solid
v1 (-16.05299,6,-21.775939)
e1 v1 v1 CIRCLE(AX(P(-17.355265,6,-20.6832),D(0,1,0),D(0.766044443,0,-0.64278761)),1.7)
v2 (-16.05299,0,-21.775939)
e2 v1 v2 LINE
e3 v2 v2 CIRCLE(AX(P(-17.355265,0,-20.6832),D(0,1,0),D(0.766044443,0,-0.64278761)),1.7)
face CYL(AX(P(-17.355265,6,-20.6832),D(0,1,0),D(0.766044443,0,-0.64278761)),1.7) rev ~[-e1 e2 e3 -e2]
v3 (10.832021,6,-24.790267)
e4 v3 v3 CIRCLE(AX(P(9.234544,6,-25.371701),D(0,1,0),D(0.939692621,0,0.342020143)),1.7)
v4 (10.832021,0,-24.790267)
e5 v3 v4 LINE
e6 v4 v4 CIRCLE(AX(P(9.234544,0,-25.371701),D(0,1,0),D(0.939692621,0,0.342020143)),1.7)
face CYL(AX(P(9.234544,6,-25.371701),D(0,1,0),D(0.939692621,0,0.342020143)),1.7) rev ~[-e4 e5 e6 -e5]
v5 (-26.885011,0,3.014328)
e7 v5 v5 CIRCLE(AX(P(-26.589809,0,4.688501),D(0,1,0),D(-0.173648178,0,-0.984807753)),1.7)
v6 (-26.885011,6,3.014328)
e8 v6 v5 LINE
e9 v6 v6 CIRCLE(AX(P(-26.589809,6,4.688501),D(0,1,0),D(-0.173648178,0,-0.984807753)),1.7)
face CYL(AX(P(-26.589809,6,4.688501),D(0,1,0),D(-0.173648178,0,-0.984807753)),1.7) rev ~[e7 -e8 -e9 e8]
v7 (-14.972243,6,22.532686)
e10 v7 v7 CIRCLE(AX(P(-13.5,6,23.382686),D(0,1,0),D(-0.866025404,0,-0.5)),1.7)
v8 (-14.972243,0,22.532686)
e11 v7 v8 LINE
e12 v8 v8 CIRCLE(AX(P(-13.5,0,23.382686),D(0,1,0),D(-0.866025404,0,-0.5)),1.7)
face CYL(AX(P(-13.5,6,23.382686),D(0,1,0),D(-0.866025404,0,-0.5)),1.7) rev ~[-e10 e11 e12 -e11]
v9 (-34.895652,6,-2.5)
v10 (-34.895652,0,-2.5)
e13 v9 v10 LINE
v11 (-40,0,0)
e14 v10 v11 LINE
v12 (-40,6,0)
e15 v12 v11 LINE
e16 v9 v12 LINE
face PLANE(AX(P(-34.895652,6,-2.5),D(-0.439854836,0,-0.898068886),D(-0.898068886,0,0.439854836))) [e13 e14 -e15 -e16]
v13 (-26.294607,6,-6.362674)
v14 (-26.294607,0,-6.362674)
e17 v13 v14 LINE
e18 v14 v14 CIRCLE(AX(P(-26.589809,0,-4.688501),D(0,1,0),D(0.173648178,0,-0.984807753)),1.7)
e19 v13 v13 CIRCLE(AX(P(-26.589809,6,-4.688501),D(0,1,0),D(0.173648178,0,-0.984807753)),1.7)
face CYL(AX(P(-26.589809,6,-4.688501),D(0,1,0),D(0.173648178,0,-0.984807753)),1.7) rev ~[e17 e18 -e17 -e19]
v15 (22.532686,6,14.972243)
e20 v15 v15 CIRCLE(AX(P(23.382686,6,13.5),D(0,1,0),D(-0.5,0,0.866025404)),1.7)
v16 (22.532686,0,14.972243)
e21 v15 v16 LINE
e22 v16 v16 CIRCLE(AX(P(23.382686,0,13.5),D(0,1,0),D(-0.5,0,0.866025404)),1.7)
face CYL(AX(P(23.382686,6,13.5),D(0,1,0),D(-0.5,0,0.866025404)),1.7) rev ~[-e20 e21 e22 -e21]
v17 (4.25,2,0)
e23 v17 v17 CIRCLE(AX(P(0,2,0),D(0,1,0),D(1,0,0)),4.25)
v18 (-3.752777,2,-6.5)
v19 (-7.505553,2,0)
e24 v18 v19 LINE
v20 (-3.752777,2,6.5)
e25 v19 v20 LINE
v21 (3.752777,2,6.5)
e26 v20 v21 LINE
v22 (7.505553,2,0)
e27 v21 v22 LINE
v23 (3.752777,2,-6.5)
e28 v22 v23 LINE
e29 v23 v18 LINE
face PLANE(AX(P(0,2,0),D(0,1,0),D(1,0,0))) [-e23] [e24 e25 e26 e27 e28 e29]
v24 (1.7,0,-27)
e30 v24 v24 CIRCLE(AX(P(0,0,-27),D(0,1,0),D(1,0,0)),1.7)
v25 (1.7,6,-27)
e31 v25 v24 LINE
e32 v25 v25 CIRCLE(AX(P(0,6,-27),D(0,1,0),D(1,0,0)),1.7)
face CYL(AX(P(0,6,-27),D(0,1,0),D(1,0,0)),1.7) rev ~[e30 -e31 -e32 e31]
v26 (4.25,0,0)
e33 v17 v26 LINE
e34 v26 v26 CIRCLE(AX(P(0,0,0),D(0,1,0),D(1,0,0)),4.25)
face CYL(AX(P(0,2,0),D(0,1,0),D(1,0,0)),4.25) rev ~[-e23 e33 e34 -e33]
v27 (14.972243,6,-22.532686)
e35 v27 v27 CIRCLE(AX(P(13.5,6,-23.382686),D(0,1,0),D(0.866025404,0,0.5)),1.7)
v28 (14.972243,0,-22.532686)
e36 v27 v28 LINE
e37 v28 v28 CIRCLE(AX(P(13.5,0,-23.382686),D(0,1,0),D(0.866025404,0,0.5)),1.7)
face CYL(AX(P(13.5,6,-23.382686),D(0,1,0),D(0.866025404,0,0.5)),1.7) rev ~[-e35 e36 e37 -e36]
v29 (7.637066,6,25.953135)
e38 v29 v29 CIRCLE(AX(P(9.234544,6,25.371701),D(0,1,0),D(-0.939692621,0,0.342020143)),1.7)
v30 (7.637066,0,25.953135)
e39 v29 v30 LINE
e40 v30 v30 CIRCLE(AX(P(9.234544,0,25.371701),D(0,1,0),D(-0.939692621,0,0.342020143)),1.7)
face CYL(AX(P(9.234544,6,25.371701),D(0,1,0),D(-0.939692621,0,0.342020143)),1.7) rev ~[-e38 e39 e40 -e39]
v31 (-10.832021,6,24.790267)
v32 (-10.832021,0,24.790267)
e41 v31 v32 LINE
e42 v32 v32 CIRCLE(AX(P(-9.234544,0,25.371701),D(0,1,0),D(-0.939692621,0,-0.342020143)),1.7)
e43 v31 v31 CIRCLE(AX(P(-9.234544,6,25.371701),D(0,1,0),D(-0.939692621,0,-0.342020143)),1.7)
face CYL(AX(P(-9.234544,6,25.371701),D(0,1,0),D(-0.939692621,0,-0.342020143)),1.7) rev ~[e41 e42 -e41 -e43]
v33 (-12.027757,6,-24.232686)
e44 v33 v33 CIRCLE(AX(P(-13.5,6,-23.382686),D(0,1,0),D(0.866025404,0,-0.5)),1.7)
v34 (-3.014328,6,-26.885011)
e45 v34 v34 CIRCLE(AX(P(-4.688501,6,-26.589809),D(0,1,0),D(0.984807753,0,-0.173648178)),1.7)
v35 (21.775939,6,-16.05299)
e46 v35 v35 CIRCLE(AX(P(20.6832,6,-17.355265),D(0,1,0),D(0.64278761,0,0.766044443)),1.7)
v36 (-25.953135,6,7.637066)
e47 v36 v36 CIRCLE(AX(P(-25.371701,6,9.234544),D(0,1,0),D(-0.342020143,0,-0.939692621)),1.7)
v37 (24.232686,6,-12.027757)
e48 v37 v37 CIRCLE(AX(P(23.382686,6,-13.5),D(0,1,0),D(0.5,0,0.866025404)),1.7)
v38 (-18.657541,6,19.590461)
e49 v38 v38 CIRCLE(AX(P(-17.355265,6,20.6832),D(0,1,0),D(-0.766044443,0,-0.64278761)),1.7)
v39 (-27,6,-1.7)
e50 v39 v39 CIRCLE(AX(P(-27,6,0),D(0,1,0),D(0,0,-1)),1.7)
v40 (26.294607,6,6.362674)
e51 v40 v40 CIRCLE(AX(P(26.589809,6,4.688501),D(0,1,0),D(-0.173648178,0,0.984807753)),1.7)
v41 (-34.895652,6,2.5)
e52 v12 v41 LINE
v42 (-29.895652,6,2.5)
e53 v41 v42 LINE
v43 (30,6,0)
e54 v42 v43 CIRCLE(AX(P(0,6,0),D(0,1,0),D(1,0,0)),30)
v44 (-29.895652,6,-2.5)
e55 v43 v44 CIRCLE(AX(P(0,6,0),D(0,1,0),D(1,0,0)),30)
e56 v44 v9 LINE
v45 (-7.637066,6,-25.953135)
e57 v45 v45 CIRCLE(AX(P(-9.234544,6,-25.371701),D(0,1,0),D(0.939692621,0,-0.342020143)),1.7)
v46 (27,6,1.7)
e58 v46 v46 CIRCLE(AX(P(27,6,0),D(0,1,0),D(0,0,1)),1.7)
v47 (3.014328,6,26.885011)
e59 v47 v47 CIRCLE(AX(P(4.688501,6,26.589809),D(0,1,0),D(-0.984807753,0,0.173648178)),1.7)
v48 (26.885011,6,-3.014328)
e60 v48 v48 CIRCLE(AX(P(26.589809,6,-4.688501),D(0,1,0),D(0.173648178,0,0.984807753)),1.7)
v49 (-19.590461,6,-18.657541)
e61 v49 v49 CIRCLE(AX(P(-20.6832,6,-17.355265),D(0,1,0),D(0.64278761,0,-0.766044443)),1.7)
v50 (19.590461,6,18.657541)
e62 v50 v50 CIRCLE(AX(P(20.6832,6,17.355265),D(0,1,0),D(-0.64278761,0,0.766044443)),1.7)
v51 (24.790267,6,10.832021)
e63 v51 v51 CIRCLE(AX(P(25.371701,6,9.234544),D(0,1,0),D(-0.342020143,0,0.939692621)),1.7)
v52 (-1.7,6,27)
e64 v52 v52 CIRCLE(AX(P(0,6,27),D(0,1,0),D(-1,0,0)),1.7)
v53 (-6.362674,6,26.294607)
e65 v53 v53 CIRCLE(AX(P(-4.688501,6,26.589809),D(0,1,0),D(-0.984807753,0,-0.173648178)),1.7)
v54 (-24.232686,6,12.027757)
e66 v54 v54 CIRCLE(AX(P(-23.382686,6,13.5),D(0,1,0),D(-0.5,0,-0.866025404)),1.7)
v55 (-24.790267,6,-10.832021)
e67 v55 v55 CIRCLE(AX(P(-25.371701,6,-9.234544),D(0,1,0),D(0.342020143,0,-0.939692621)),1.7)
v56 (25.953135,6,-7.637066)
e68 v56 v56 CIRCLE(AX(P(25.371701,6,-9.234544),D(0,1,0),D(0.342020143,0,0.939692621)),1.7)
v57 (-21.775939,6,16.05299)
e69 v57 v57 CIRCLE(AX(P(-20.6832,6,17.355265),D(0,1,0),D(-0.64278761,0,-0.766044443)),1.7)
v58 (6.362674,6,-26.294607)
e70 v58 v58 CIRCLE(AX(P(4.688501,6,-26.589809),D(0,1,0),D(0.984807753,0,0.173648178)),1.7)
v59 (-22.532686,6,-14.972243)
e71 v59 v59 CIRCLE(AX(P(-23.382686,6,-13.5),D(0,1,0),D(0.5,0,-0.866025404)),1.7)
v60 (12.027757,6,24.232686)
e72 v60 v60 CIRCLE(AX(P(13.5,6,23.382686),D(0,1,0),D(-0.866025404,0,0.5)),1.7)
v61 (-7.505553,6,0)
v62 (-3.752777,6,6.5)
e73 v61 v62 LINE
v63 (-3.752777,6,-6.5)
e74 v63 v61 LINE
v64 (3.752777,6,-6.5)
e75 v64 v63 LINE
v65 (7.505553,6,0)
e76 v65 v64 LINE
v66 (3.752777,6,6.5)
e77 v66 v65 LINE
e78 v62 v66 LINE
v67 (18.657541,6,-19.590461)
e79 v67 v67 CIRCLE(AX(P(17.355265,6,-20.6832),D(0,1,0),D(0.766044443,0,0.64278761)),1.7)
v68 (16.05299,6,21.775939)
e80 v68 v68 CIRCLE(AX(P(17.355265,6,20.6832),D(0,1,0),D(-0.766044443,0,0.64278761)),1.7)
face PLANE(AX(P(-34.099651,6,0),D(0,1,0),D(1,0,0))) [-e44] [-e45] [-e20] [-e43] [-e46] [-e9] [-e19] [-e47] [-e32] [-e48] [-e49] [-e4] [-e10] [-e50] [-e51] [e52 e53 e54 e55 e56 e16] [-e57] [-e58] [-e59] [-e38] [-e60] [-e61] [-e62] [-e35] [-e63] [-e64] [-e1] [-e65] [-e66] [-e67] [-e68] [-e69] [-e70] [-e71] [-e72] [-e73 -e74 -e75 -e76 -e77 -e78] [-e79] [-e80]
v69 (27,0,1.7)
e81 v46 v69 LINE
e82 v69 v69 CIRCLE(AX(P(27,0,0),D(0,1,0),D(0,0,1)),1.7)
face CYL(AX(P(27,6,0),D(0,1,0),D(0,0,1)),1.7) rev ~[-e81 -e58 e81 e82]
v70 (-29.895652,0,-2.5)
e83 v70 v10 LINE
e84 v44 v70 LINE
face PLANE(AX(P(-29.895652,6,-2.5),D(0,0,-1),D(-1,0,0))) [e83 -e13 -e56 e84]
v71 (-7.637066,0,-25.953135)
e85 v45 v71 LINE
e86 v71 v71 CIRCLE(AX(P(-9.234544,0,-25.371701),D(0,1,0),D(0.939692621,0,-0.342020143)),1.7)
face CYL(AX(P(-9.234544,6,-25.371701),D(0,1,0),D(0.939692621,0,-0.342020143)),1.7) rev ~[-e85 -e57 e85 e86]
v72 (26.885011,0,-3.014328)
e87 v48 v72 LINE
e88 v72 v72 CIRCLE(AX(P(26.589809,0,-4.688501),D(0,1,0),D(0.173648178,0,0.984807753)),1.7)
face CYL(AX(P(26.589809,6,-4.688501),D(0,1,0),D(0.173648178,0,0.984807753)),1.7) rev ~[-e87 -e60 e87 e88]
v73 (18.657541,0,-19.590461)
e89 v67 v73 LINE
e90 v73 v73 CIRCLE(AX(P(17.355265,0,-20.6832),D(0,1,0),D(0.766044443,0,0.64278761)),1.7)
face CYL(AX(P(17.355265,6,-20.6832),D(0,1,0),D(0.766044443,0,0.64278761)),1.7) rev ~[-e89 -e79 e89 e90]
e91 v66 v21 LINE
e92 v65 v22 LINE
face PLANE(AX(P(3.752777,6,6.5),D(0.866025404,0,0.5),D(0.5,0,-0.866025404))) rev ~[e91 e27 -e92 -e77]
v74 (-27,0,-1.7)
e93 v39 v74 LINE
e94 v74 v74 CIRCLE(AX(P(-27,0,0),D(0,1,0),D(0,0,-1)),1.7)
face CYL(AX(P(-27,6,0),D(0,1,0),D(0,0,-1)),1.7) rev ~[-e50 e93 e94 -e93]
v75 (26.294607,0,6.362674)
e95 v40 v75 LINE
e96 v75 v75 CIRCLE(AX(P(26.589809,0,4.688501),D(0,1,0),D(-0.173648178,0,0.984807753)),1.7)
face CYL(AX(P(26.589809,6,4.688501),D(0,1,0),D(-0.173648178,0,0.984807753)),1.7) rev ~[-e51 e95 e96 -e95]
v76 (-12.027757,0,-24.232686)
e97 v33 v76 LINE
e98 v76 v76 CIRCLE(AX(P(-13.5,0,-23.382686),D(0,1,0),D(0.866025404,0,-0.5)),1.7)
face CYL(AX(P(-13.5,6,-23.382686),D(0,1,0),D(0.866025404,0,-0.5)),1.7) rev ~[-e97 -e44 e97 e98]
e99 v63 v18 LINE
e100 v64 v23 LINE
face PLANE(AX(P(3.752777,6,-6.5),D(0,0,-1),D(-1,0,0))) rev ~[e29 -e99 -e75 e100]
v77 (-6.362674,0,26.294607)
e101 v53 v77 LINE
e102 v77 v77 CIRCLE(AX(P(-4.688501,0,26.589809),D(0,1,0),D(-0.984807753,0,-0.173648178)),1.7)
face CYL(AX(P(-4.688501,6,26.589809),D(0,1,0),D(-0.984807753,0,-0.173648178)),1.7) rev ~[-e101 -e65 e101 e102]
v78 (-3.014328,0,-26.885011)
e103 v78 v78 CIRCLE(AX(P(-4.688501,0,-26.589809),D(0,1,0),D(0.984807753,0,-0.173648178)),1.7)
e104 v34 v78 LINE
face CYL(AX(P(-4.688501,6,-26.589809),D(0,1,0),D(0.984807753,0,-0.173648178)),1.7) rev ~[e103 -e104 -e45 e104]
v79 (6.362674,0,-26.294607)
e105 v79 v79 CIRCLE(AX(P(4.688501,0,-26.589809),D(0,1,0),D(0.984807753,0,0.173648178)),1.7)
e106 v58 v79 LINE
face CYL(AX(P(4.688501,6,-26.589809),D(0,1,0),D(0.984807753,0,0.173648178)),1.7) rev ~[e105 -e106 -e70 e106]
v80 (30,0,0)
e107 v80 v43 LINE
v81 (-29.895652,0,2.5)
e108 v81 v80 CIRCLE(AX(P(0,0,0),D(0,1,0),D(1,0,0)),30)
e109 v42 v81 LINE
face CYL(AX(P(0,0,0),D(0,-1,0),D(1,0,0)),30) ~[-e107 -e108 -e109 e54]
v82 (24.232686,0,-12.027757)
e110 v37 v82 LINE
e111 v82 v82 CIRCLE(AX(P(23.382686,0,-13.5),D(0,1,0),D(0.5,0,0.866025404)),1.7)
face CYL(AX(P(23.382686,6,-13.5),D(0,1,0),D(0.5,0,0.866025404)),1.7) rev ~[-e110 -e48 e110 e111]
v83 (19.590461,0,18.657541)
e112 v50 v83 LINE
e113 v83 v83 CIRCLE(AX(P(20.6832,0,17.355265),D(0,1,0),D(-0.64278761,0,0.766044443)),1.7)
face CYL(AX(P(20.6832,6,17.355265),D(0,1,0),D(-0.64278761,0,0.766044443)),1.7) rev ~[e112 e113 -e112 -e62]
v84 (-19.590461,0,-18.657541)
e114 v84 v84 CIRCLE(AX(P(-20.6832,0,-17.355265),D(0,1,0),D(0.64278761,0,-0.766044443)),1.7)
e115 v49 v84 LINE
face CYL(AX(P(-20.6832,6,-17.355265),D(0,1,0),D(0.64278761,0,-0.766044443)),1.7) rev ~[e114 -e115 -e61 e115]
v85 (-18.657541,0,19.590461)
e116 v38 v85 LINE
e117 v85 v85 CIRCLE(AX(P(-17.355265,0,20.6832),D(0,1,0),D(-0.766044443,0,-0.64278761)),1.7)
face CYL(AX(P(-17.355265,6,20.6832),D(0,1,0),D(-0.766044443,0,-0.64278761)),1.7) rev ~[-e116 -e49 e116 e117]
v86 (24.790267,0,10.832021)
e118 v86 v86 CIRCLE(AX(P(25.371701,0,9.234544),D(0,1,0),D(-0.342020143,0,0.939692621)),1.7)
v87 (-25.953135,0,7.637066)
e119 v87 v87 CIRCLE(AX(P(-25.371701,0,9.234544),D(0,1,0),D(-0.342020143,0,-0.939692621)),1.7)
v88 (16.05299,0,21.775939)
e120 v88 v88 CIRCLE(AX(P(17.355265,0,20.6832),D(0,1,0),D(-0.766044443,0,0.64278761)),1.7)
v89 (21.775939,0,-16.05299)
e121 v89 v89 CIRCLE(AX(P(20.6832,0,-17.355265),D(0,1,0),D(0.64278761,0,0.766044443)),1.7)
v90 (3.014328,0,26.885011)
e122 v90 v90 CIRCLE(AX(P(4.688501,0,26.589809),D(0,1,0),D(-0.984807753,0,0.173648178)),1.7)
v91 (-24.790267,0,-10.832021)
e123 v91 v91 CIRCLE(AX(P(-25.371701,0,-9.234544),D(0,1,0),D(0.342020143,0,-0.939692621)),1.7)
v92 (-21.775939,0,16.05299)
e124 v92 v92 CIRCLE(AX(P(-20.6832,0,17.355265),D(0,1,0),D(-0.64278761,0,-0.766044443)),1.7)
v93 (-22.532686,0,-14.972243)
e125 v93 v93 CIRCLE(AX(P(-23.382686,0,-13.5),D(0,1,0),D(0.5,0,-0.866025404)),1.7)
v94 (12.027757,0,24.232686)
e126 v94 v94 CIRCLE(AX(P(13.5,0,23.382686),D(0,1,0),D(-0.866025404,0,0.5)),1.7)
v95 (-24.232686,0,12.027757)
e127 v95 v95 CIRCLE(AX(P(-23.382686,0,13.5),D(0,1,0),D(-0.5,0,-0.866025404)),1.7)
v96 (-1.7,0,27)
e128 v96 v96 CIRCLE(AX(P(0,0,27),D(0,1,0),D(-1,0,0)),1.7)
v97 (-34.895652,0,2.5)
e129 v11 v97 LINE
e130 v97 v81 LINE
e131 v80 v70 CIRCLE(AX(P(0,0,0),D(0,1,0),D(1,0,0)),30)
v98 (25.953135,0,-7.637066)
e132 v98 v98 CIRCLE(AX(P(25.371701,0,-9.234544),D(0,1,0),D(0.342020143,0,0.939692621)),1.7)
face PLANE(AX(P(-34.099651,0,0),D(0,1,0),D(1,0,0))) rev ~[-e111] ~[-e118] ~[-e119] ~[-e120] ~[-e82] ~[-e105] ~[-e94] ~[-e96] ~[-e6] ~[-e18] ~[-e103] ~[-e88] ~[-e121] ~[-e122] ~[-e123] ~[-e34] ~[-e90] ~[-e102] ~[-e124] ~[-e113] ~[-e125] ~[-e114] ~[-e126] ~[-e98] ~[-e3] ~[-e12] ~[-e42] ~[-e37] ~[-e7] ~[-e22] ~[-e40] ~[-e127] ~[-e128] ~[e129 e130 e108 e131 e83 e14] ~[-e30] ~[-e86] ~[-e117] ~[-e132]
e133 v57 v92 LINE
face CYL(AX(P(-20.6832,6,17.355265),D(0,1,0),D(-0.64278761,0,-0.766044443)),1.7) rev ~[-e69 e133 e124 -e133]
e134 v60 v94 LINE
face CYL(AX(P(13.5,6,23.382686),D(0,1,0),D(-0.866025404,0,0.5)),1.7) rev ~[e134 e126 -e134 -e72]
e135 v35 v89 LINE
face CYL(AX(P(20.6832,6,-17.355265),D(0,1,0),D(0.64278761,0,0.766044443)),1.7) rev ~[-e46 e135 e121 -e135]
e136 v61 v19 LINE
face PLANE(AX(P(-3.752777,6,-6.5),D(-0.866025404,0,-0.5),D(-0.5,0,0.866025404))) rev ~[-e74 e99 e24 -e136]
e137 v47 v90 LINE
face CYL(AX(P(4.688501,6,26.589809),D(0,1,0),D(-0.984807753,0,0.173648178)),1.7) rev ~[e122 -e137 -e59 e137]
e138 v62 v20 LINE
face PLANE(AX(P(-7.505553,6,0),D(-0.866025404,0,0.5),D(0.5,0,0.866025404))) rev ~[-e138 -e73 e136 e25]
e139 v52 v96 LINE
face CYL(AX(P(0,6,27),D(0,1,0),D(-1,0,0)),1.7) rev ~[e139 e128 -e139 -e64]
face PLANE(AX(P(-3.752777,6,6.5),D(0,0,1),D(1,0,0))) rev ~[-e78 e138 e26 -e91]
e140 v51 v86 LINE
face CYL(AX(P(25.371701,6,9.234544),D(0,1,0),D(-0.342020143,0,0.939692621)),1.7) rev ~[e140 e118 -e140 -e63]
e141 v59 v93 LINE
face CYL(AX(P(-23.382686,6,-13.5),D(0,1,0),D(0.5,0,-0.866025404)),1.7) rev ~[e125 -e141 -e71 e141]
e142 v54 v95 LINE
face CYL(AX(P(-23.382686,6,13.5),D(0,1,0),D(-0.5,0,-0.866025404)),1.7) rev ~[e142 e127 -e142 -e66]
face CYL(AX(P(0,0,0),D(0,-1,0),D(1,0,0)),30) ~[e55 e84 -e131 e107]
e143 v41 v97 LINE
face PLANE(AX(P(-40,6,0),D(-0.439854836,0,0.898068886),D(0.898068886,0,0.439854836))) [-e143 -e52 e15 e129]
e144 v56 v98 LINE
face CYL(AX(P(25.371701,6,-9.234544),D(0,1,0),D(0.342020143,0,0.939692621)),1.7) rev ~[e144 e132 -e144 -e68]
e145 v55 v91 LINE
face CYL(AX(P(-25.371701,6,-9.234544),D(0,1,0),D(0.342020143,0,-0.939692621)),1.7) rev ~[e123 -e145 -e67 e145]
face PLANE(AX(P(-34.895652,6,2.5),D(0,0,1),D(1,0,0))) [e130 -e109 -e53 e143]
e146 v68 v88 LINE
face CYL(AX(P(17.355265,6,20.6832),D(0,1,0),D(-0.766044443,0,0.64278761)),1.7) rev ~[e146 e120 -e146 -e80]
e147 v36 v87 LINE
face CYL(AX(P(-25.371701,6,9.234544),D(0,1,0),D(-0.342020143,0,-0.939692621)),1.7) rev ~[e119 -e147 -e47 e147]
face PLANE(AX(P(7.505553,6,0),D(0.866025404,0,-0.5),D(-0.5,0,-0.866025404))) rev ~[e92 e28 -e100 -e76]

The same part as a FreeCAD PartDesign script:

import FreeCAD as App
import Part
import Sketcher

V = App.Vector
Q = App.Units.Quantity

doc = App.newDocument("Part")
body = doc.addObject("PartDesign::Body", "Body")

# Sketch on XZ plane
sketch1 = doc.addObject("Sketcher::SketchObject", "Sketch")
body.addObject(sketch1)
sketch1.AttachmentSupport = (doc.XZ_Plane, [""])
sketch1.MapMode = "FlatFace"
sketch1.addGeometry(Part.Circle(V(0, 0, 0), V(0, 0, 1), 30), False)
sketch1.addConstraint(Sketcher.Constraint("Coincident", 0, 3, -1, 1))
sketch1.addConstraint(Sketcher.Constraint("Diameter", 0, Q("60 mm")))
pad1 = doc.addObject("PartDesign::Pad", "Pad")
body.addObject(pad1)
pad1.Profile = sketch1
pad1.Length = 6
pad1.Reversed = True

# Sketch on XZ plane
sketch2 = doc.addObject("Sketcher::SketchObject", "Sketch001")
body.addObject(sketch2)
sketch2.AttachmentSupport = (doc.XZ_Plane, [""])
sketch2.MapMode = "FlatFace"
sketch2.AttachmentOffset = App.Placement(V(0, 0, -6), App.Rotation())
sketch2.addGeometry(Part.LineSegment(V(4, -6, 0), V(-4, -6, 0)), False)
sketch2.addGeometry(Part.LineSegment(V(-4, -6, 0), V(-8, 0, 0)), False)
sketch2.addGeometry(Part.LineSegment(V(-8, 0, 0), V(-4, 6, 0)), False)
sketch2.addGeometry(Part.LineSegment(V(-4, 6, 0), V(4, 6, 0)), False)
sketch2.addGeometry(Part.LineSegment(V(4, 6, 0), V(8, 0, 0)), False)
sketch2.addGeometry(Part.LineSegment(V(8, 0, 0), V(4, -6, 0)), False)
sketch2.addConstraint(Sketcher.Constraint("Coincident", 0, 2, 1, 1))
sketch2.addConstraint(Sketcher.Constraint("Coincident", 1, 2, 2, 1))
sketch2.addConstraint(Sketcher.Constraint("Coincident", 2, 2, 3, 1))
sketch2.addConstraint(Sketcher.Constraint("Coincident", 3, 2, 4, 1))
sketch2.addConstraint(Sketcher.Constraint("Coincident", 4, 2, 5, 1))
sketch2.addConstraint(Sketcher.Constraint("Coincident", 5, 2, 0, 1))
sketch2.addConstraint(Sketcher.Constraint("Horizontal", 0))
sketch2.addConstraint(Sketcher.Constraint("Horizontal", 3))
sketch2.addConstraint(Sketcher.Constraint("Symmetric", 0, 2, 3, 2, -1, 1))
sketch2.addConstraint(Sketcher.Constraint("Symmetric", 1, 2, 4, 2, -1, 1))
sketch2.addConstraint(Sketcher.Constraint("PointOnObject", 1, 2, -1))
sketch2.addConstraint(Sketcher.Constraint("Parallel", 2, 5))
sketch2.addConstraint(Sketcher.Constraint("Vertical", 0, 2, 2, 2))
sketch2.addConstraint(Sketcher.Constraint("Angle", 1, Q("120 deg")))
sketch2.addConstraint(Sketcher.Constraint("DistanceY", 0, 2, 2, 2, Q("13 mm")))
sketch2.addConstraint(Sketcher.Constraint("DistanceX", 0, 2, 0, 1, Q("7.505554 mm")))
pocket1 = doc.addObject("PartDesign::Pocket", "Pocket")
body.addObject(pocket1)
pocket1.Profile = sketch2
pocket1.Length = 4
pocket1.Reversed = True

# Sketch on XZ plane
sketch3 = doc.addObject("Sketcher::SketchObject", "Sketch002")
body.addObject(sketch3)
sketch3.AttachmentSupport = (doc.XZ_Plane, [""])
sketch3.MapMode = "FlatFace"
sketch3.AttachmentOffset = App.Placement(V(0, 0, -6), App.Rotation())
sketch3.addGeometry(Part.Circle(V(0, -27, 0), V(0, 0, 1), 1.7), False)
sketch3.addConstraint(Sketcher.Constraint("PointOnObject", 0, 3, -2))
sketch3.addConstraint(Sketcher.Constraint("Diameter", 0, Q("3.4 mm")))
sketch3.addConstraint(Sketcher.Constraint("DistanceY", 0, 3, -1, 1, Q("27 mm")))
pocket2 = doc.addObject("PartDesign::Pocket", "Pocket001")
body.addObject(pocket2)
pocket2.Profile = sketch3
pocket2.Type = "ThroughAll"
pocket2.Reversed = True
doc.recompute()

polarpattern = doc.addObject("PartDesign::PolarPattern", "PolarPattern")
body.addObject(polarpattern)
polarpattern.Originals = [pocket2]
polarpattern.Axis = (doc.Y_Axis, [""])
polarpattern.Angle = 360
polarpattern.Occurrences = 36
body.Tip = polarpattern

# Sketch on XZ plane
sketch4 = doc.addObject("Sketcher::SketchObject", "Sketch003")
body.addObject(sketch4)
sketch4.AttachmentSupport = (doc.XZ_Plane, [""])
sketch4.MapMode = "FlatFace"
sketch4.AttachmentOffset = App.Placement(V(0, 0, -2), App.Rotation())
sketch4.addGeometry(Part.Circle(V(0, 0, 0), V(0, 0, 1), 4.2), False)
sketch4.addConstraint(Sketcher.Constraint("Coincident", 0, 3, -1, 1))
sketch4.addConstraint(Sketcher.Constraint("Diameter", 0, Q("8.5 mm")))
pocket3 = doc.addObject("PartDesign::Pocket", "Pocket002")
body.addObject(pocket3)
pocket3.Profile = sketch4
pocket3.Type = "ThroughAll"
pocket3.Reversed = True

# Sketch on XZ plane
sketch5 = doc.addObject("Sketcher::SketchObject", "Sketch004")
body.addObject(sketch5)
sketch5.AttachmentSupport = (doc.XZ_Plane, [""])
sketch5.MapMode = "FlatFace"
sketch5.AttachmentOffset = App.Placement(V(0, 0, -6), App.Rotation())
sketch5.addGeometry(Part.LineSegment(V(-35, -2, 0), V(-40, 0, 0)), False)
sketch5.addGeometry(Part.LineSegment(V(-40, 0, 0), V(-35, 2, 0)), False)
sketch5.addGeometry(Part.LineSegment(V(-35, 2, 0), V(-30, 2, 0)), False)
sketch5.addGeometry(Part.LineSegment(V(-30, 2, 0), V(-30, -2, 0)), False)
sketch5.addGeometry(Part.LineSegment(V(-30, -2, 0), V(-35, -2, 0)), False)
sketch5.addConstraint(Sketcher.Constraint("Coincident", 0, 2, 1, 1))
sketch5.addConstraint(Sketcher.Constraint("Coincident", 1, 2, 2, 1))
sketch5.addConstraint(Sketcher.Constraint("Coincident", 2, 2, 3, 1))
sketch5.addConstraint(Sketcher.Constraint("Coincident", 3, 2, 4, 1))
sketch5.addConstraint(Sketcher.Constraint("Coincident", 4, 2, 0, 1))
sketch5.addConstraint(Sketcher.Constraint("Horizontal", 2))
sketch5.addConstraint(Sketcher.Constraint("Vertical", 3))
sketch5.addConstraint(Sketcher.Constraint("Horizontal", 4))
sketch5.addConstraint(Sketcher.Constraint("Symmetric", 1, 2, 4, 2, -1))
sketch5.addConstraint(Sketcher.Constraint("PointOnObject", 0, 2, -1))
sketch5.addConstraint(Sketcher.Constraint("Equal", 4, 3))
sketch5.addConstraint(Sketcher.Constraint("DistanceX", 2, 1, 2, 2, Q("5 mm")))
sketch5.addConstraint(Sketcher.Constraint("DistanceX", 0, 2, -1, 1, Q("40 mm")))
sketch5.addConstraint(Sketcher.Constraint("DistanceX", 1, 2, -1, 1, Q("34.895652 mm")))
pad2 = doc.addObject("PartDesign::Pad", "Pad001")
body.addObject(pad2)
pad2.Profile = sketch5
pad2.Length = 6

doc.recompute()
